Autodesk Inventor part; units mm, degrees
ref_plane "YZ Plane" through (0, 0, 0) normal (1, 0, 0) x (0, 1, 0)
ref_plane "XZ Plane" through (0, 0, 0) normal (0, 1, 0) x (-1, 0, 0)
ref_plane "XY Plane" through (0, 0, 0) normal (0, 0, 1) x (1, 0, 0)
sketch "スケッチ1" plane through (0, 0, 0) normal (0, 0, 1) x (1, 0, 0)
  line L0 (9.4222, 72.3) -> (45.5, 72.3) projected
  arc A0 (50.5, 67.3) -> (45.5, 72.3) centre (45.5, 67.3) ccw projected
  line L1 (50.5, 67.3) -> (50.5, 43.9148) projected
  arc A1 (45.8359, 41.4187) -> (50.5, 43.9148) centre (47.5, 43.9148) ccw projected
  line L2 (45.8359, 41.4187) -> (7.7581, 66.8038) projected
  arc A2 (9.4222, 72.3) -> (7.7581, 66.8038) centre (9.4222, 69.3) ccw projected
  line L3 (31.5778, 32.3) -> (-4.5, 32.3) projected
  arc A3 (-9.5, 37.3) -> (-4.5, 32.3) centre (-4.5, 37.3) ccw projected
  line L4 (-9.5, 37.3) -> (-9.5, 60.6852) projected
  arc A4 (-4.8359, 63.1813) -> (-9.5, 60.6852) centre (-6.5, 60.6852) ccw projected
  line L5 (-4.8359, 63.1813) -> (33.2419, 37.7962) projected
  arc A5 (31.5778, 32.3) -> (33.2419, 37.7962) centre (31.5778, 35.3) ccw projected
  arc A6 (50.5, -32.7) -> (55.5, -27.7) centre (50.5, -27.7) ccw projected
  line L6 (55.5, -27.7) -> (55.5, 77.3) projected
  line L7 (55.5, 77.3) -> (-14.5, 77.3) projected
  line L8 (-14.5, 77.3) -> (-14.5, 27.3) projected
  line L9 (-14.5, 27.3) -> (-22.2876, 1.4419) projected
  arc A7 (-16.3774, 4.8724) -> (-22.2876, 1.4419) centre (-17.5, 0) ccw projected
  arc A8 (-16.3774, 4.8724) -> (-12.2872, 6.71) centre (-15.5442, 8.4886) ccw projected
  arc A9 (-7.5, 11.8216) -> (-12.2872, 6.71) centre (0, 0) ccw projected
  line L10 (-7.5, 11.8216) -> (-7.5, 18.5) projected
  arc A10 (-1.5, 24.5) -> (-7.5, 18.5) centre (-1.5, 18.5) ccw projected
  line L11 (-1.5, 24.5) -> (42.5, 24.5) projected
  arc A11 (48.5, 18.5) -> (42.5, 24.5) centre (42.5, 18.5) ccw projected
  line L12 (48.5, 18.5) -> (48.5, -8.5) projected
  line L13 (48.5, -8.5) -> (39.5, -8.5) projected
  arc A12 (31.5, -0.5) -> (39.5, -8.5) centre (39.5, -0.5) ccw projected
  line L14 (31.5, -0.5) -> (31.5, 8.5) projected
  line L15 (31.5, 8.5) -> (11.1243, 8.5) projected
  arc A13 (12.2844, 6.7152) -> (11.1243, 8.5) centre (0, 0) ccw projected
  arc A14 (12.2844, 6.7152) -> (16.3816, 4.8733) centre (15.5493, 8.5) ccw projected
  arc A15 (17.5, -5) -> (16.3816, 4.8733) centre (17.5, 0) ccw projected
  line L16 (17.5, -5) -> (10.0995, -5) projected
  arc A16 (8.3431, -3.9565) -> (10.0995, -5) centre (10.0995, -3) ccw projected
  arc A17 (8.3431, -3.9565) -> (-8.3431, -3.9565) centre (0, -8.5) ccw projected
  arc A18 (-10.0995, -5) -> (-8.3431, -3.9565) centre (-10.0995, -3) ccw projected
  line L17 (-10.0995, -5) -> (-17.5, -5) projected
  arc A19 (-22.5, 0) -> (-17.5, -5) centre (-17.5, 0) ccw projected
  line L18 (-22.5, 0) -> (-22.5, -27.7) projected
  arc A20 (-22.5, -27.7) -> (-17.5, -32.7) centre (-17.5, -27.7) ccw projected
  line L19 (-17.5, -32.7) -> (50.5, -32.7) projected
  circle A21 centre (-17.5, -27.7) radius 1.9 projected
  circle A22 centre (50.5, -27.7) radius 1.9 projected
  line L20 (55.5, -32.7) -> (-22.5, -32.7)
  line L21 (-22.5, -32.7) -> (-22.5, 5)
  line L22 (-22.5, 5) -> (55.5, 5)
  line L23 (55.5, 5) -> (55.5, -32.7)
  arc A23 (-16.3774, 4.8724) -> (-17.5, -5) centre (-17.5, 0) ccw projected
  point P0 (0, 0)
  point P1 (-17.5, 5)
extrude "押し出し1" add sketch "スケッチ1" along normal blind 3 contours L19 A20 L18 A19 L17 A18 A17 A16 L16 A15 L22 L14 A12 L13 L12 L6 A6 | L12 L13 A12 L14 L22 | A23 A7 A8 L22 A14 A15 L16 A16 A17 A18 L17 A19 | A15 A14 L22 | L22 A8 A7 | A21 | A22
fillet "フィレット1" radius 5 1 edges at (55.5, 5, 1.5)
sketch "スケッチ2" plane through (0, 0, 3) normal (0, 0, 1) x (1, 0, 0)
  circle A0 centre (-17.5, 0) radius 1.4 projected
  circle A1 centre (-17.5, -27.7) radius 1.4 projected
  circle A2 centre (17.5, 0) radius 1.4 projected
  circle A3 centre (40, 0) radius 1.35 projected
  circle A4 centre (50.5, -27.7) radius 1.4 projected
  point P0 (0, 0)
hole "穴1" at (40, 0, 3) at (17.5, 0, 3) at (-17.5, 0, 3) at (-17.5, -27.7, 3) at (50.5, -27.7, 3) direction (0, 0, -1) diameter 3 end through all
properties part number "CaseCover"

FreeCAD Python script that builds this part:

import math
import FreeCAD as App
import Part
import Sketcher
from FreeCAD import Vector
Q = App.Units.Quantity


def edges_at(feature, points):
    """Names of the edges that pass closest to the given points."""
    edges = feature.Shape.Edges
    near = lambda p: min(range(len(edges)), key=lambda i: edges[i].distToShape(Part.Vertex(*p))[0])
    return sorted({f"Edge{near(p) + 1}" for p in points})

doc = App.newDocument("Part")
params = doc.addObject("Spreadsheet::Sheet", "Params")
for row, (alias, value) in enumerate([
    ("sketch1_radius", "5 mm"),
    ("sketch1_width", "68 mm"),
    ("sketch1_height", "32.7 mm"),
    ("pad1_length", "3 mm"),
    ("fillet_radius", "5 mm"),
    ("sketch2_diameter", "3 mm"),
    ("hole_diameter", "3 mm"),
], start=1):
    params.set(f"A{row}", alias)
    params.set(f"B{row}", "=" + value)
    params.setAlias(f"B{row}", alias)

body = doc.addObject("PartDesign::Body", "Body")

sketch1 = body.newObject("Sketcher::SketchObject", "Sketch")
sketch1.AttachmentSupport = (doc.getObject("XY_Plane"), [""])
sketch1.MapMode = "FlatFace"
sketch1.addGeometry([
    Part.LineSegment(Vector(-17.5, -32.7, 0), Vector(50.5, -32.7, 0)),
    Part.ArcOfCircle(Part.Circle(Vector(50.5, -27.7, 0), Vector(0, 0, 1), 5), math.radians(-90), math.radians(0)),
    Part.LineSegment(Vector(55.5, -27.7, 0), Vector(55.5, 5, 0)),
    Part.LineSegment(Vector(55.5, 5, 0), Vector(-17.5, 5, 0)),
    Part.ArcOfCircle(Part.Circle(Vector(-17.5, 0, 0), Vector(0, 0, 1), 5), math.radians(90), math.radians(163)),
    Part.ArcOfCircle(Part.Circle(Vector(-17.5, 0, 0), Vector(0, 0, 1), 5), math.radians(163.24), math.radians(180)),
    Part.LineSegment(Vector(-22.5, 0, 0), Vector(-22.5, -27.7, 0)),
    Part.ArcOfCircle(Part.Circle(Vector(-17.5, -27.7, 0), Vector(0, 0, 1), 5), math.radians(180), math.radians(270)),
], False)
sketch1.addConstraint([
    Sketcher.Constraint("Tangent", 0, 2, 1, 1),
    Sketcher.Constraint("Tangent", 1, 2, 2, 1),
    Sketcher.Constraint("Coincident", 2, 2, 3, 1),
    Sketcher.Constraint("Tangent", 3, 2, 4, 1),
    Sketcher.Constraint("Tangent", 4, 2, 5, 1),
    Sketcher.Constraint("Tangent", 5, 2, 6, 1),
    Sketcher.Constraint("Tangent", 6, 2, 7, 1),
    Sketcher.Constraint("Tangent", 7, 2, 0, 1),
    Sketcher.Constraint("Horizontal", 0),
    Sketcher.Constraint("Vertical", 2),
    Sketcher.Constraint("Horizontal", 3),
    Sketcher.Constraint("Vertical", 6),
    Sketcher.Constraint("Equal", 1, 4),
    Sketcher.Constraint("Equal", 4, 5),
    Sketcher.Constraint("Equal", 5, 7),
    Sketcher.Constraint("PointOnObject", 4, 3, -1),
    Sketcher.Constraint("Radius", 1, Q("5 mm")),
    Sketcher.Constraint("DistanceX", 0, 1, 0, 2, Q("68 mm")),
    Sketcher.Constraint("DistanceY", 2, 1, 2, 2, Q("32.7 mm")),
    Sketcher.Constraint("DistanceX", -1, 1, 1, 3, Q("50.5 mm")),
    Sketcher.Constraint("DistanceY", -1, 1, 4, 2, Q("1.442 mm")),
])
sketch1.setExpression("Constraints[16]", "Params.sketch1_radius")
sketch1.setExpression("Constraints[17]", "Params.sketch1_width")
sketch1.setExpression("Constraints[18]", "Params.sketch1_height")
pad1 = body.newObject("PartDesign::Pad", "Pad")
pad1.Profile = sketch1
pad1.setExpression("Length", "Params.pad1_length")
doc.recompute()

fillet = body.newObject("PartDesign::Fillet", "Fillet")
fillet.Base = (pad1, edges_at(pad1, [(55.5, 5, 1.5)]))
fillet.setExpression("Radius", "Params.fillet_radius")

sketch2 = body.newObject("Sketcher::SketchObject", "Sketch001")
sketch2.AttachmentSupport = (doc.getObject("XY_Plane"), [""])
sketch2.MapMode = "FlatFace"
sketch2.AttachmentOffset = App.Placement(Vector(0, 0, 3), App.Rotation())
sketch2.addGeometry([
    Part.Circle(Vector(40, 0, 0), Vector(0, 0, 1), 1.5),
    Part.Circle(Vector(17.5, 0, 0), Vector(0, 0, 1), 1.5),
    Part.Circle(Vector(-17.5, 0, 0), Vector(0, 0, 1), 1.5),
    Part.Circle(Vector(-17.5, -27.7, 0), Vector(0, 0, 1), 1.5),
    Part.Circle(Vector(50.5, -27.7, 0), Vector(0, 0, 1), 1.5),
], False)
sketch2.addConstraint([
    Sketcher.Constraint("Equal", 0, 1),
    Sketcher.Constraint("Equal", 1, 2),
    Sketcher.Constraint("Equal", 2, 3),
    Sketcher.Constraint("Equal", 3, 4),
    Sketcher.Constraint("Symmetric", 1, 3, 2, 3, -1, 1),
    Sketcher.Constraint("PointOnObject", 0, 3, -1),
    Sketcher.Constraint("PointOnObject", 1, 3, -1),
    Sketcher.Constraint("Horizontal", 3, 3, 4, 3),
    Sketcher.Constraint("Vertical", 2, 3, 3, 3),
    Sketcher.Constraint("Diameter", 0, Q("3 mm")),
    Sketcher.Constraint("DistanceX", -1, 1, 0, 3, Q("40 mm")),
    Sketcher.Constraint("DistanceX", 2, 3, 1, 3, Q("35 mm")),
    Sketcher.Constraint("DistanceX", 1, 3, 4, 3, Q("33 mm")),
    Sketcher.Constraint("DistanceY", 3, 3, -1, 1, Q("27.7 mm")),
])
sketch2.setExpression("Constraints[9]", "Params.sketch2_diameter")
doc.recompute()
hole = body.newObject("PartDesign::Hole", "Hole")
hole.Profile = sketch2
hole.ThreadType = "None"
hole.setExpression("Diameter", "Params.hole_diameter")
hole.DepthType = "ThroughAll"

doc.recompute()
